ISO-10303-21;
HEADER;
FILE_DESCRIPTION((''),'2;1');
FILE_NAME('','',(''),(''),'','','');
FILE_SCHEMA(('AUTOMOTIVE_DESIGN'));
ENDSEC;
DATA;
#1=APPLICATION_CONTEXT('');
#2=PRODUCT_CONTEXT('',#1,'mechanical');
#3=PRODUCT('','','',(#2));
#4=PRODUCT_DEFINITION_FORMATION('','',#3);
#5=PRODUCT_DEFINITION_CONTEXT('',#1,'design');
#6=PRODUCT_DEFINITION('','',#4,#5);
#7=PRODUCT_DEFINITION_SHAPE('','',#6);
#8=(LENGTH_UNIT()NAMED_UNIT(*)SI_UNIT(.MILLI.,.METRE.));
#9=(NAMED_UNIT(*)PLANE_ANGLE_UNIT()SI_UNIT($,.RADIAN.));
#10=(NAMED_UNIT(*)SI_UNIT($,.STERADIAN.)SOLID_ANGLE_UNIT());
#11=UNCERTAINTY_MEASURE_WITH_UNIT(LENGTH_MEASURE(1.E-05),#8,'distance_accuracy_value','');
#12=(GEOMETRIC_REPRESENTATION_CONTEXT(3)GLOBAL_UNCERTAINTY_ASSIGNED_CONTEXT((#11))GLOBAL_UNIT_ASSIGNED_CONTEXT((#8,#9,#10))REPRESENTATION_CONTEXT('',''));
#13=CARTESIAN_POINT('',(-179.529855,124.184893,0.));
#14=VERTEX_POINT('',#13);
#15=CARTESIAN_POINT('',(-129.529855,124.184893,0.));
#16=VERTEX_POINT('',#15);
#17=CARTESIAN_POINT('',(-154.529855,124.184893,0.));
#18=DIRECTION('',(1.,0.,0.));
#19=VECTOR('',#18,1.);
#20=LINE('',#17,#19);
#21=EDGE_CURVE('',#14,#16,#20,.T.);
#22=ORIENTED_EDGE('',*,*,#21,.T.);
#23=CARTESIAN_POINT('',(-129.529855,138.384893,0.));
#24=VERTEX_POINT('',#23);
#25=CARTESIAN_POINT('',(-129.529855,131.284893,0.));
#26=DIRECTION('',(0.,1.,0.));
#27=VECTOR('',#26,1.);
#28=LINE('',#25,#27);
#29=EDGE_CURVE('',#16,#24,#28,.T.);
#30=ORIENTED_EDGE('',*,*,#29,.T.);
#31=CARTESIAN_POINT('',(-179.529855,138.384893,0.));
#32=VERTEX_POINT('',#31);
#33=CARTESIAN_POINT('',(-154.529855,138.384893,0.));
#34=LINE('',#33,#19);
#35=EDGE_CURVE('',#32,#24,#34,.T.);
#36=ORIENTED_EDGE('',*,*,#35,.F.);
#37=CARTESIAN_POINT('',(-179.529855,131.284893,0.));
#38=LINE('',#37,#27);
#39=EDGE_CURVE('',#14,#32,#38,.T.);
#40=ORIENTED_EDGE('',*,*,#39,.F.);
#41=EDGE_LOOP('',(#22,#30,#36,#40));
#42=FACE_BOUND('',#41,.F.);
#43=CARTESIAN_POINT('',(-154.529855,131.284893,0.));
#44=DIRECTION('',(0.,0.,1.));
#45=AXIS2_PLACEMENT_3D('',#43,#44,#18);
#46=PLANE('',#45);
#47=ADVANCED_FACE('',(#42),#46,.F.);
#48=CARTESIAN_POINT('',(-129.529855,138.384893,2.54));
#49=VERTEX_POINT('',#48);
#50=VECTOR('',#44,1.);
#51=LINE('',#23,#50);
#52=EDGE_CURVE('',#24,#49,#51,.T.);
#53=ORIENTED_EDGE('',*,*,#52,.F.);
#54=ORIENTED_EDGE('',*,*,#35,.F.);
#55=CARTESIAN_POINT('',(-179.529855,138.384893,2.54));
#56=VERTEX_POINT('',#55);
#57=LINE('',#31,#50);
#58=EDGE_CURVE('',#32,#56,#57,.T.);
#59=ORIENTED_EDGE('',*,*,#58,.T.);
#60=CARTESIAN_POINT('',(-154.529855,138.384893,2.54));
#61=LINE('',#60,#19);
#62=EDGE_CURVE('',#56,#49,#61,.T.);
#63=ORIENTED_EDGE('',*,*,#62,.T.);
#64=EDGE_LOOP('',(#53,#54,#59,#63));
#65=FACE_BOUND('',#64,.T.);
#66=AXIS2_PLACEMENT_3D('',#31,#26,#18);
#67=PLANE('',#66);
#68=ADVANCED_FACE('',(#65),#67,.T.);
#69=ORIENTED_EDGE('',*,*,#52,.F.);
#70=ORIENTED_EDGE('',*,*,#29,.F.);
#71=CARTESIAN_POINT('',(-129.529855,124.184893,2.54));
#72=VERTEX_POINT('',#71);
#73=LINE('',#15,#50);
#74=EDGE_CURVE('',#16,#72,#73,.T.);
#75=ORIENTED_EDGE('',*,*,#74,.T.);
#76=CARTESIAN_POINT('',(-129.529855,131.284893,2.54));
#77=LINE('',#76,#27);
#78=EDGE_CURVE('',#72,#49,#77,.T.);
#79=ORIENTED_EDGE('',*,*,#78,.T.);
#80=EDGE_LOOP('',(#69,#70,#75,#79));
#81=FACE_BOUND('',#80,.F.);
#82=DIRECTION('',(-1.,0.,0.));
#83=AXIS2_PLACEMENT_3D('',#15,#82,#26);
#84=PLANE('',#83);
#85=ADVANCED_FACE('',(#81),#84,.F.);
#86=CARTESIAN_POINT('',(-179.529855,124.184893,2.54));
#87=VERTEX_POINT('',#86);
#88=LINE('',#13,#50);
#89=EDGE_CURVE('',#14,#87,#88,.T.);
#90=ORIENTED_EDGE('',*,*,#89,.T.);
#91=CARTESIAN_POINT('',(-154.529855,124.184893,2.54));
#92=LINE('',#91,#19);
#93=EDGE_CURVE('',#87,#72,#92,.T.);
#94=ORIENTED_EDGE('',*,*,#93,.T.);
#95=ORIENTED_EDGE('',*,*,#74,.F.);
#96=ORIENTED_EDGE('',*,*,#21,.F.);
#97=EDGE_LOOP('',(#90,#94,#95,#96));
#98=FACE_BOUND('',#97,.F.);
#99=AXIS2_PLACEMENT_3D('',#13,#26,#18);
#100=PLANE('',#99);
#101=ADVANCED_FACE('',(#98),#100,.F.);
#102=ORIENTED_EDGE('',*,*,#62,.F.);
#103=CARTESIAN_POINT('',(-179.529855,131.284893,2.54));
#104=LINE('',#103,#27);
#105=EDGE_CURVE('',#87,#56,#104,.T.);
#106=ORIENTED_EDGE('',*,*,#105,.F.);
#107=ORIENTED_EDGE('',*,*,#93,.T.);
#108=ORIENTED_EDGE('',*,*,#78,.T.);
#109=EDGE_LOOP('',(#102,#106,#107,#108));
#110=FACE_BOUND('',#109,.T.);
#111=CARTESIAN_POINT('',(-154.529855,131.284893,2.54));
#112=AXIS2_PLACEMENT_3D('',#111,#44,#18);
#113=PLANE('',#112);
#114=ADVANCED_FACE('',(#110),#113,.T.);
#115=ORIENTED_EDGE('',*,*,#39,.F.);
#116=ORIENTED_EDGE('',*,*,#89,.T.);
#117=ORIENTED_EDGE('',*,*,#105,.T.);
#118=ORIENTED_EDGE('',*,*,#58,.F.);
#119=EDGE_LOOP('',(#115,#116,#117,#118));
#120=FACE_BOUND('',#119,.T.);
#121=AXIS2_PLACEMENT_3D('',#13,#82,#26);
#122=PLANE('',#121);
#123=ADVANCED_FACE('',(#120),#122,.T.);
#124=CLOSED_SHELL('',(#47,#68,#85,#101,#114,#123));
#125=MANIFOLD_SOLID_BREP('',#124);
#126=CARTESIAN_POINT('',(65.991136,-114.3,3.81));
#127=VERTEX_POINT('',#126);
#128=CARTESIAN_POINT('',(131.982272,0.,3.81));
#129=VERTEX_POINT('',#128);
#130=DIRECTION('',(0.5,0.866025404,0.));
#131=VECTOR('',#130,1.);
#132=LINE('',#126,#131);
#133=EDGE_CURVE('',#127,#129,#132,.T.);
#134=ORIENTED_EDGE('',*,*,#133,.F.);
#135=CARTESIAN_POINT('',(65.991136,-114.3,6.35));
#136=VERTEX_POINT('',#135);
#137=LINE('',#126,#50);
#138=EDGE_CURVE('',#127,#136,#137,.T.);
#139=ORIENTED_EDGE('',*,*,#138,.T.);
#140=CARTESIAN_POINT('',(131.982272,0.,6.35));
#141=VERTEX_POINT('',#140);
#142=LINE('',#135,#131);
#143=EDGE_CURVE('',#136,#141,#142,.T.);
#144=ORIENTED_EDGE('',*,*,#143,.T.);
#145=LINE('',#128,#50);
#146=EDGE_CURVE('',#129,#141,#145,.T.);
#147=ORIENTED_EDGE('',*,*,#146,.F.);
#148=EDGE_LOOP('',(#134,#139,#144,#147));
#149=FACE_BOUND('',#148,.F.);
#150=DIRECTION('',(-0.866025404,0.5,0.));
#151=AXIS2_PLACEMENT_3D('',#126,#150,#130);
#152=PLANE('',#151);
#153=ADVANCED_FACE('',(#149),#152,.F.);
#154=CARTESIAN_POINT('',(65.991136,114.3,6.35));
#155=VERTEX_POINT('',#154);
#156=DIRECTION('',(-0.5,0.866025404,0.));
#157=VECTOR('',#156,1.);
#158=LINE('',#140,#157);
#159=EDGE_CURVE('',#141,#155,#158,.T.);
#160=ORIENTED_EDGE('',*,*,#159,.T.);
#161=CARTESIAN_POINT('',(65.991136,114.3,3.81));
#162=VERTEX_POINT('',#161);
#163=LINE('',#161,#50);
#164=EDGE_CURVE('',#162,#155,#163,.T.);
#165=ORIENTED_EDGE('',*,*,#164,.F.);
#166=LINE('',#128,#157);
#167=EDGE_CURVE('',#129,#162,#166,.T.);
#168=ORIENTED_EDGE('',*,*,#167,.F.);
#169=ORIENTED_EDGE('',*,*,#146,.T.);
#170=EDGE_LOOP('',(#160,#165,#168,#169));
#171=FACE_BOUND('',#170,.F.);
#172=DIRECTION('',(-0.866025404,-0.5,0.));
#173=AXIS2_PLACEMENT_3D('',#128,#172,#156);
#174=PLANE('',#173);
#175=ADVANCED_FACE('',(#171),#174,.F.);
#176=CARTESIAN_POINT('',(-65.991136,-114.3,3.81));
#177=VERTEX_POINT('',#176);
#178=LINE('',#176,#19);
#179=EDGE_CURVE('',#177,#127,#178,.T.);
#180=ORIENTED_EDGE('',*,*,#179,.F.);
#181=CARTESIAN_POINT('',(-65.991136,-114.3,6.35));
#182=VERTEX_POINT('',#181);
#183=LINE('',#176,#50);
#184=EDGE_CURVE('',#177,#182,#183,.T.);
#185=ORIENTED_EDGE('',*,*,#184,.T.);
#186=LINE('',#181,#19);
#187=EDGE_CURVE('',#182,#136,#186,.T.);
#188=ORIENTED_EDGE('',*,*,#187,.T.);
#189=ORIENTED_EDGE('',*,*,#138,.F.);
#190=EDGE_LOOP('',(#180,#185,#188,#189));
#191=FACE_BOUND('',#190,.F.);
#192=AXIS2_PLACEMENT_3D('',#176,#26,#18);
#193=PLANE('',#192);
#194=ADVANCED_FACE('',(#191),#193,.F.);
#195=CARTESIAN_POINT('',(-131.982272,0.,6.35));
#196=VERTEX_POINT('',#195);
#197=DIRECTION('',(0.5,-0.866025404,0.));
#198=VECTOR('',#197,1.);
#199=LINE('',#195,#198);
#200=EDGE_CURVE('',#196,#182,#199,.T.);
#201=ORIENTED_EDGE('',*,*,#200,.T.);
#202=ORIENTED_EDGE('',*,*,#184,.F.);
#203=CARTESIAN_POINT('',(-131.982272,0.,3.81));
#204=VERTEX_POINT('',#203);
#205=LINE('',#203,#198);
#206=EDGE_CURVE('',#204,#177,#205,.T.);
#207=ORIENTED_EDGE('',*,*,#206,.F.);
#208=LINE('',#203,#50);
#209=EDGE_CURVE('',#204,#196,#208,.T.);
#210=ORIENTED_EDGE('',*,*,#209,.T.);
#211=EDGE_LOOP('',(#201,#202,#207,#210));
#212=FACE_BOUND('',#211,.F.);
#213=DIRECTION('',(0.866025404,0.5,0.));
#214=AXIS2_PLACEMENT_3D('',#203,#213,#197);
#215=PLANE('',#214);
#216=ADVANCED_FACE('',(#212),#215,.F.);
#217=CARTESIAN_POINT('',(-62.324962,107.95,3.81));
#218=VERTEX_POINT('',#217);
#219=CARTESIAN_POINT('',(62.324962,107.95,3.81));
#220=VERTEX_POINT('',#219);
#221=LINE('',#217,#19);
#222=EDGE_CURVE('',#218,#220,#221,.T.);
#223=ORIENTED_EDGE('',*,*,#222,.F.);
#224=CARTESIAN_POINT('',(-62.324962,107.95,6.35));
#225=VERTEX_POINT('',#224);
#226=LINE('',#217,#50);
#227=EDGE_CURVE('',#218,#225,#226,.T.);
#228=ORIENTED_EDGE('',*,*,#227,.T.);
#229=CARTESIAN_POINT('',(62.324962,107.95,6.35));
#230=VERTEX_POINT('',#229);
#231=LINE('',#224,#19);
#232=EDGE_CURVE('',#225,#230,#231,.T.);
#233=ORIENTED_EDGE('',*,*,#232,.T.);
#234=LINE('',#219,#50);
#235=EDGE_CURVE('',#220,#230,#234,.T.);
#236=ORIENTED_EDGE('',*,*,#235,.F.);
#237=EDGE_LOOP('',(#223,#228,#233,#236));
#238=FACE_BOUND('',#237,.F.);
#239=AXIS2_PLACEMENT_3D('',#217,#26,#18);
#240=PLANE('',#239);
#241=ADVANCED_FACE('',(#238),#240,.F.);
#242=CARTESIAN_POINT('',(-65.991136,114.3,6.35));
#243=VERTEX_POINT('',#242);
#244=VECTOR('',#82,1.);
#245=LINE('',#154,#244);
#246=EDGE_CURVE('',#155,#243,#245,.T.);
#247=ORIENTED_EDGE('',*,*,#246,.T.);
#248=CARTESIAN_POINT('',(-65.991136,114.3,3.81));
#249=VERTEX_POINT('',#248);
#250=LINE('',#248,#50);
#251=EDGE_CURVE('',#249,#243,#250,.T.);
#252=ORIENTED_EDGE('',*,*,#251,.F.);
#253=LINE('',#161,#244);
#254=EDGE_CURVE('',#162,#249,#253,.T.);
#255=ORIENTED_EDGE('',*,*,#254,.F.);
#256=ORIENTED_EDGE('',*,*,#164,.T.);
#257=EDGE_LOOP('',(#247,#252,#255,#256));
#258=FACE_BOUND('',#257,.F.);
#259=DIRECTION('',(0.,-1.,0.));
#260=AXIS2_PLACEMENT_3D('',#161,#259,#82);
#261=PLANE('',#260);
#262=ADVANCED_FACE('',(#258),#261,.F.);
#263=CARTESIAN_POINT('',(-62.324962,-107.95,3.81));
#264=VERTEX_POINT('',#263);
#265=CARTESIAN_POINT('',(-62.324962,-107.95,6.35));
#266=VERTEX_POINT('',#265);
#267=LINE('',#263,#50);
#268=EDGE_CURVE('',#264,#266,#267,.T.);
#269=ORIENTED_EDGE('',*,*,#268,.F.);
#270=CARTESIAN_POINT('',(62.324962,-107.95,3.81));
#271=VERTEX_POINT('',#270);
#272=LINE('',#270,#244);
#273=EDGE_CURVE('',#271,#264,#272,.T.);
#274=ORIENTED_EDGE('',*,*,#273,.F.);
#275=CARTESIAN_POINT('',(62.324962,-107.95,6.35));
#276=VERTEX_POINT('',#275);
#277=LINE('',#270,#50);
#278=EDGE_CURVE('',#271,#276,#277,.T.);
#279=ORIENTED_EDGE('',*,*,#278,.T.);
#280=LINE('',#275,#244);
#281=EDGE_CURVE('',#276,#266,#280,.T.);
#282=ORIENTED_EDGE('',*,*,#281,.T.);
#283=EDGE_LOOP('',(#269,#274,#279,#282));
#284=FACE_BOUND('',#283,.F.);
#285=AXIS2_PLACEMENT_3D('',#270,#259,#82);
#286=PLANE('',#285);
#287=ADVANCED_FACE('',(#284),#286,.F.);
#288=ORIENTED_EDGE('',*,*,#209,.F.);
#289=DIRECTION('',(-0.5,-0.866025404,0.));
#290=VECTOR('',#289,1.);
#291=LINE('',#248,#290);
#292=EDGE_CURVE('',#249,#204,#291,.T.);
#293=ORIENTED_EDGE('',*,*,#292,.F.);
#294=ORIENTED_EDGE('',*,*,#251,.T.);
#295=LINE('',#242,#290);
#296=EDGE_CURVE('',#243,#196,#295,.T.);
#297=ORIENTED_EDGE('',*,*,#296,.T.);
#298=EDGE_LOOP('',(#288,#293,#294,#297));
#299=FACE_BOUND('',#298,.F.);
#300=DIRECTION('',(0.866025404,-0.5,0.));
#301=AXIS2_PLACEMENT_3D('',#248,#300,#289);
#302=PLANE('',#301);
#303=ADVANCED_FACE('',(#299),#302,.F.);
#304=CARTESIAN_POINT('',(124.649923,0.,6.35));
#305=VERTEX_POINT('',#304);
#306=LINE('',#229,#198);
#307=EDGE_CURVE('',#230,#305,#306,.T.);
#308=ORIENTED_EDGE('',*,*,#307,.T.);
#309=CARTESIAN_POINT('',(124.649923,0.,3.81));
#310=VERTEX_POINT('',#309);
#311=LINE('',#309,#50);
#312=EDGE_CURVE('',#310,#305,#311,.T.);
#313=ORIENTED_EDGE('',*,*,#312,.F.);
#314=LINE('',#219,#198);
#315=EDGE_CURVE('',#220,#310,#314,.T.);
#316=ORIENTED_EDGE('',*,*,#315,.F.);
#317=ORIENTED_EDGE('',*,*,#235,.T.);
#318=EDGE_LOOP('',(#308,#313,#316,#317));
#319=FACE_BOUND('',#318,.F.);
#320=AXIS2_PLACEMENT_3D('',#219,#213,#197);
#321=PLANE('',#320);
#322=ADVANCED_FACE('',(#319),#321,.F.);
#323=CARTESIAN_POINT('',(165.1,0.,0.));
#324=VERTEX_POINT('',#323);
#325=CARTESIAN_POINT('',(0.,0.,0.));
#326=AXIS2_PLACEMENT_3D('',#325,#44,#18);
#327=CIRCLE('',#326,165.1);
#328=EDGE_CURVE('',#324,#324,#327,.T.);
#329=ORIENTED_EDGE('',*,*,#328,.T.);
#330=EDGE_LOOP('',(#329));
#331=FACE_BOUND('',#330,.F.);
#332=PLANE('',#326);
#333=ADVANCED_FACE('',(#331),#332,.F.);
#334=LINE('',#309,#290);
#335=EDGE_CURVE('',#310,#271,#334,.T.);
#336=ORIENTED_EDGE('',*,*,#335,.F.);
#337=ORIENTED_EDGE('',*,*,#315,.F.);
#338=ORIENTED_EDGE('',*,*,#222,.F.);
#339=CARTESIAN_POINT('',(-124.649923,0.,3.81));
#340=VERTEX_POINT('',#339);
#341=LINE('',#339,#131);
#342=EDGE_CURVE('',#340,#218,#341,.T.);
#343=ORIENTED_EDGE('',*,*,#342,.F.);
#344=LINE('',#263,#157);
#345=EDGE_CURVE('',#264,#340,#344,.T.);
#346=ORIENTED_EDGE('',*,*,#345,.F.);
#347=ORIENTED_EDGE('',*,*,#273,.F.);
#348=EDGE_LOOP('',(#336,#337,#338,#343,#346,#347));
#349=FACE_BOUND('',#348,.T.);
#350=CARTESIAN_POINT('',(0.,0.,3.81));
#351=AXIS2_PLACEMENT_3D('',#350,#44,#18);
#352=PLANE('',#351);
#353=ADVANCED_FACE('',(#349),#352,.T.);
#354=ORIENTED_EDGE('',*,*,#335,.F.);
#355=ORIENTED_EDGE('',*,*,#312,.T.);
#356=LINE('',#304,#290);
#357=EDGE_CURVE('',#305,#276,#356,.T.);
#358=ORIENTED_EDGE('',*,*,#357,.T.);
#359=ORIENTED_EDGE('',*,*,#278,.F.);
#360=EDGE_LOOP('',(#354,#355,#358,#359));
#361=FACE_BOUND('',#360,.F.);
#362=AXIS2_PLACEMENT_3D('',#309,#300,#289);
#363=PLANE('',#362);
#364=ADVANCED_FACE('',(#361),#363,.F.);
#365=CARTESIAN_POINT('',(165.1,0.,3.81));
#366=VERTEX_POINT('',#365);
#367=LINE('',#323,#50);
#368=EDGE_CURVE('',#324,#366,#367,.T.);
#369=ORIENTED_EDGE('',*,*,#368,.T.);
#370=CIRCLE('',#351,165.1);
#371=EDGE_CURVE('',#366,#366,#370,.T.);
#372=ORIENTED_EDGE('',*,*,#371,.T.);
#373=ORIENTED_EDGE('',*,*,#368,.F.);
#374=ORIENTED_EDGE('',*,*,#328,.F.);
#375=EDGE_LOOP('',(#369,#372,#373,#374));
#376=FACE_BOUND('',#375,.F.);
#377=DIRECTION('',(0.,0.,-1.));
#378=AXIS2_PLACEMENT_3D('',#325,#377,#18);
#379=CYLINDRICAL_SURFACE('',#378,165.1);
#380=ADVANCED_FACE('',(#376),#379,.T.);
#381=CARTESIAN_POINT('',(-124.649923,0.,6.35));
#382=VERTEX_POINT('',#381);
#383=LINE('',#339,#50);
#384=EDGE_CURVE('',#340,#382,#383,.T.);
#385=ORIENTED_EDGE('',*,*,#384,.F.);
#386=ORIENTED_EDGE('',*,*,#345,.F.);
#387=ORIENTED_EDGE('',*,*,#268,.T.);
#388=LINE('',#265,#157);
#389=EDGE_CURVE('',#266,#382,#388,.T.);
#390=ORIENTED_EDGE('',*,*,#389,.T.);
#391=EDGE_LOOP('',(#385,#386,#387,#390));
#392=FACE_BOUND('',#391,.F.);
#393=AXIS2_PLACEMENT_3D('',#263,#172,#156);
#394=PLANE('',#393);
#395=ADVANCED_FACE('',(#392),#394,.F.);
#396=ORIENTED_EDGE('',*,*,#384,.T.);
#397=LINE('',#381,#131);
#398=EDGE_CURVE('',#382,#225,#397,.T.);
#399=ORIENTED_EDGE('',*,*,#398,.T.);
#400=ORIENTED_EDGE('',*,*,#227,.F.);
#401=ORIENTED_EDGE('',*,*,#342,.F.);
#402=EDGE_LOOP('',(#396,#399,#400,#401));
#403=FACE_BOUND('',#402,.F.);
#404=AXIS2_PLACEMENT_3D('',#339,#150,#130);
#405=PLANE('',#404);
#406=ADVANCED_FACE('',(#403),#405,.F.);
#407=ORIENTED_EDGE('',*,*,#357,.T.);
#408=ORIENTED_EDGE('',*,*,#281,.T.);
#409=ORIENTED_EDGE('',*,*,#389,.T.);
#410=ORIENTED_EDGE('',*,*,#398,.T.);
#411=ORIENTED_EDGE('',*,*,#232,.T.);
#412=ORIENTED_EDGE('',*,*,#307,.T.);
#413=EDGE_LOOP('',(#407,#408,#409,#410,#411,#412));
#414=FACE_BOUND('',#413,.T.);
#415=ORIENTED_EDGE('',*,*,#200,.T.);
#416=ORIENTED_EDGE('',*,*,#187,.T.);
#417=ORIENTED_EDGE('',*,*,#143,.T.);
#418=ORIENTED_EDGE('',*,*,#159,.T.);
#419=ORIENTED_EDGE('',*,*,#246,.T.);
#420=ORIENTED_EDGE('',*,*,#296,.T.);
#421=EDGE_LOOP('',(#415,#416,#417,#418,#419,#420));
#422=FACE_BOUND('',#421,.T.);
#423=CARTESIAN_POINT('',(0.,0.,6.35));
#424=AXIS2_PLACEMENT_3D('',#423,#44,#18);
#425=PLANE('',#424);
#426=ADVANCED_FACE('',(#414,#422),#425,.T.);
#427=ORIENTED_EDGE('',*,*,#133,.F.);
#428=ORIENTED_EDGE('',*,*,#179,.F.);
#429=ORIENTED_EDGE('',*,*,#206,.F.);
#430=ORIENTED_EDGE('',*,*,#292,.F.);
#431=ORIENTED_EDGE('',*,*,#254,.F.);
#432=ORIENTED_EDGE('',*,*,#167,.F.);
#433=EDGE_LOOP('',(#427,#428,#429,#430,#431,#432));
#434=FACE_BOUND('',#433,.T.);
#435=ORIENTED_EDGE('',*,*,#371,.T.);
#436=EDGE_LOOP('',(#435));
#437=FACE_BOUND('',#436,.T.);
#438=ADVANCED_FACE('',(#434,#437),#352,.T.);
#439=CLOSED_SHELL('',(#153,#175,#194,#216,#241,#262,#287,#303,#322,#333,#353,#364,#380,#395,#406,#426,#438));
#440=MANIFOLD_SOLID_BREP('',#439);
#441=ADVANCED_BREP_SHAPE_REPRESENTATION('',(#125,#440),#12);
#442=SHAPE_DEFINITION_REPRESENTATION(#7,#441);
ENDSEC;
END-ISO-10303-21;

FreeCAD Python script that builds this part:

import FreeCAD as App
import Part
import Sketcher
Q = App.Units.Quantity


def add_polygon(sketch, points):
    """Adds a closed chain of lines whose ends are joined by coincident constraints."""
    first, n = sketch.GeometryCount, len(points)
    for a, b in zip(points, points[1:] + points[:1]):
        sketch.addGeometry(Part.LineSegment(App.Vector(*a, 0), App.Vector(*b, 0)), False)
    for i in range(n):
        sketch.addConstraint(Sketcher.Constraint("Coincident", first + i, 2, first + (i + 1) % n, 1))

doc = App.newDocument("Part")
params = doc.addObject("Spreadsheet::Sheet", "Params")
for row, (alias, value) in enumerate([
    ("sketch1_diameter", "13 in"),
    ("pad1_length", "0.15 in"),
    ("pad2_length", "0.1 in"),
    ("pad3_length", "0.1 in"),
], start=1):
    params.set(f"A{row}", alias)
    params.set(f"B{row}", "=" + value)
    params.setAlias(f"B{row}", alias)

body = doc.addObject("PartDesign::Body", "Body")

sketch1 = body.newObject("Sketcher::SketchObject", "Sketch")
sketch1.AttachmentSupport = (doc.getObject("XY_Plane"), [""])
sketch1.MapMode = "FlatFace"
sketch1.addGeometry(Part.Circle(App.Vector(0, 0, 0), App.Vector(0, 0, 1), 165.1), False)
sketch1.addConstraint([
    Sketcher.Constraint("Coincident", 0, 3, -1, 1),
    Sketcher.Constraint("Diameter", 0, Q("13 in")),
])
sketch1.setExpression("Constraints[1]", "Params.sketch1_diameter")
pad1 = body.newObject("PartDesign::Pad", "Pad")
pad1.Profile = sketch1
pad1.setExpression("Length", "Params.pad1_length")

sketch2 = body.newObject("Sketcher::SketchObject", "Sketch001")
sketch2.AttachmentSupport = (doc.getObject("XY_Plane"), [""])
sketch2.MapMode = "FlatFace"
sketch2.AttachmentOffset = App.Placement(App.Vector(0, 0, 0.15 * 25.4), App.Rotation())
add_polygon(sketch2, [(-65.991136, 114.3), (-131.982272, 0), (-65.991136, -114.3), (65.991136, -114.3), (131.982272, 0), (65.991136, 114.3)])
add_polygon(sketch2, [(62.324962, -107.95), (-62.324962, -107.95), (-124.649923, 0), (-62.324962, 107.95), (62.324962, 107.95), (124.649923, 0)])
sketch2.addConstraint([
    Sketcher.Constraint("Horizontal", 2),
    Sketcher.Constraint("Horizontal", 5),
    Sketcher.Constraint("Horizontal", 6),
    Sketcher.Constraint("Horizontal", 9),
    Sketcher.Constraint("Symmetric", 0, 2, 3, 2, -1, 1),
    Sketcher.Constraint("Symmetric", 1, 2, 4, 2, -1, 1),
    Sketcher.Constraint("Symmetric", 6, 2, 9, 2, -1, 1),
    Sketcher.Constraint("Symmetric", 7, 2, 10, 2, -1, 1),
    Sketcher.Constraint("PointOnObject", 0, 2, -1),
    Sketcher.Constraint("PointOnObject", 7, 2, -1),
    Sketcher.Constraint("Parallel", 0, 3),
    Sketcher.Constraint("Parallel", 4, 7),
    Sketcher.Constraint("Parallel", 3, 8),
    Sketcher.Constraint("Parallel", 8, 11),
    Sketcher.Constraint("Vertical", 2, 2, 4, 2),
    Sketcher.Constraint("Angle", 0, Q("-120 deg")),
    Sketcher.Constraint("DistanceY", 2, 2, 4, 2, Q("9 in")),
    Sketcher.Constraint("DistanceY", 6, 2, 8, 2, Q("8.5 in")),
    Sketcher.Constraint("DistanceX", 2, 1, 2, 2, Q("131.982272 mm")),
    Sketcher.Constraint("DistanceX", 6, 2, 6, 1, Q("124.649923 mm")),
])
pad2 = body.newObject("PartDesign::Pad", "Pad001")
pad2.Profile = sketch2
pad2.setExpression("Length", "Params.pad2_length")
body2 = doc.addObject("PartDesign::Body", "Body001")

sketch3 = body2.newObject("Sketcher::SketchObject", "Sketch002")
sketch3.AttachmentSupport = (doc.getObject("XY_Plane001"), [""])
sketch3.MapMode = "FlatFace"
add_polygon(sketch3, [(-179.529855, 138.384893), (-179.529855, 124.184893), (-129.529855, 124.184893), (-129.529855, 138.384893)])
sketch3.addConstraint([
    Sketcher.Constraint("Vertical", 0),
    Sketcher.Constraint("Horizontal", 1),
    Sketcher.Constraint("Vertical", 2),
    Sketcher.Constraint("Horizontal", 3),
    Sketcher.Constraint("DistanceX", 1, 1, 1, 2, Q("50 mm")),
    Sketcher.Constraint("DistanceY", 0, 2, 0, 1, Q("14.2 mm")),
    Sketcher.Constraint("DistanceX", 0, 2, -1, 1, Q("179.529855 mm")),
    Sketcher.Constraint("DistanceY", -1, 1, 0, 2, Q("124.184893 mm")),
])
pad3 = body2.newObject("PartDesign::Pad", "Pad002")
pad3.Profile = sketch3
pad3.setExpression("Length", "Params.pad3_length")

doc.recompute()
